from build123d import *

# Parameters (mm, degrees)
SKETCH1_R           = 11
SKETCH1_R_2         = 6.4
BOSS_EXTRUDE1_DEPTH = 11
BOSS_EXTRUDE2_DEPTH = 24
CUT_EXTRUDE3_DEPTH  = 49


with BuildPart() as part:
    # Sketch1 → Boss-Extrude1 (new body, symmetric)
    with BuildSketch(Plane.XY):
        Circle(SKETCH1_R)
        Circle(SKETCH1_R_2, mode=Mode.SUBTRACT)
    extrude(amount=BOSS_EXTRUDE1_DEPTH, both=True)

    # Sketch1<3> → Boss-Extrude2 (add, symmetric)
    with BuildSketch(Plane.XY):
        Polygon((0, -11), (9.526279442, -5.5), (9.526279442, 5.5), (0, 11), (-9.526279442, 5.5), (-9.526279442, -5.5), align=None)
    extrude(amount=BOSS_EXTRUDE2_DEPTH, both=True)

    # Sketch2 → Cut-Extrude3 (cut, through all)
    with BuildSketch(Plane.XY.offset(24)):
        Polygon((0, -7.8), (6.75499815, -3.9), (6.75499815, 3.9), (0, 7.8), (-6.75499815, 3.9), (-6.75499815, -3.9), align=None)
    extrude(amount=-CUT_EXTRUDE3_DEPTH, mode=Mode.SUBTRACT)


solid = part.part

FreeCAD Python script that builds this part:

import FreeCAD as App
import Part
import Sketcher
from FreeCAD import Vector
Q = App.Units.Quantity

doc = App.newDocument("Part")
body = doc.addObject("PartDesign::Body", "Body")

# Sketch on XY plane
sketch1 = doc.addObject("Sketcher::SketchObject", "Sketch")
body.addObject(sketch1)
sketch1.AttachmentSupport = (doc.XY_Plane, [""])
sketch1.MapMode = "FlatFace"
sketch1.addGeometry([
    Part.Circle(Vector(0, 0, 0), Vector(0, 0, 1), 11),
    Part.Circle(Vector(0, 0, 0), Vector(0, 0, 1), 6.4),
], False)
sketch1.addConstraint([
    Sketcher.Constraint("Coincident", 0, 3, -1, 1),
    Sketcher.Constraint("Coincident", 1, 3, -1, 1),
    Sketcher.Constraint("Diameter", 0, 22.0),
    Sketcher.Constraint("Diameter", 1, 12.8),
])
pad1 = doc.addObject("PartDesign::Pad", "Pad")
body.addObject(pad1)
pad1.Profile = sketch1
pad1.Length = 22
pad1.Midplane = True

# Sketch on XY plane
sketch2 = doc.addObject("Sketcher::SketchObject", "Sketch001")
body.addObject(sketch2)
sketch2.AttachmentSupport = (doc.XY_Plane, [""])
sketch2.MapMode = "FlatFace"
sketch2.addGeometry([
    Part.LineSegment(Vector(0, -11, 0), Vector(9.526279, -5.5, 0)),  # 0
    Part.LineSegment(Vector(9.526279, -5.5, 0), Vector(9.526279, 5.5, 0)),  # 1
    Part.LineSegment(Vector(9.526279, 5.5, 0), Vector(0, 11, 0)),  # 2
    Part.LineSegment(Vector(0, 11, 0), Vector(-9.526279, 5.5, 0)),  # 3
    Part.LineSegment(Vector(-9.526279, 5.5, 0), Vector(-9.526279, -5.5, 0)),  # 4
    Part.LineSegment(Vector(-9.526279, -5.5, 0), Vector(0, -11, 0)),  # 5
], False)
sketch2.addConstraint([
    Sketcher.Constraint("Coincident", 0, 2, 1, 1),
    Sketcher.Constraint("Coincident", 1, 2, 2, 1),
    Sketcher.Constraint("Coincident", 2, 2, 3, 1),
    Sketcher.Constraint("Coincident", 3, 2, 4, 1),
    Sketcher.Constraint("Coincident", 4, 2, 5, 1),
    Sketcher.Constraint("Coincident", 5, 2, 0, 1),
    Sketcher.Constraint("Vertical", 1),
    Sketcher.Constraint("Vertical", 4),
    Sketcher.Constraint("Symmetric", 0, 2, 3, 2, -1, 1),
    Sketcher.Constraint("Symmetric", 2, 2, 5, 2, -1, 1),
    Sketcher.Constraint("PointOnObject", 2, 2, -2),
    Sketcher.Constraint("Parallel", 2, 5),
    Sketcher.Constraint("Horizontal", 1, 2, 3, 2),
    Sketcher.Constraint("DistanceY", 1, 1, 1, 2, 11.0),
    Sketcher.Constraint("Angle", 0, Q("30 deg")),
    Sketcher.Constraint("Distance", 0, 11.0),
])
pad2 = doc.addObject("PartDesign::Pad", "Pad001")
body.addObject(pad2)
pad2.Profile = sketch2
pad2.Length = 48
pad2.Midplane = True

# Sketch on XY plane
sketch3 = doc.addObject("Sketcher::SketchObject", "Sketch002")
body.addObject(sketch3)
sketch3.AttachmentSupport = (doc.XY_Plane, [""])
sketch3.MapMode = "FlatFace"
sketch3.AttachmentOffset = App.Placement(Vector(0, 0, 24), App.Rotation())
sketch3.addGeometry([
    Part.LineSegment(Vector(0, -7.8, 0), Vector(6.754998, -3.9, 0)),  # 0
    Part.LineSegment(Vector(6.754998, -3.9, 0), Vector(6.754998, 3.9, 0)),  # 1
    Part.LineSegment(Vector(6.754998, 3.9, 0), Vector(0, 7.8, 0)),  # 2
    Part.LineSegment(Vector(0, 7.8, 0), Vector(-6.754998, 3.9, 0)),  # 3
    Part.LineSegment(Vector(-6.754998, 3.9, 0), Vector(-6.754998, -3.9, 0)),  # 4
    Part.LineSegment(Vector(-6.754998, -3.9, 0), Vector(0, -7.8, 0)),  # 5
], False)
sketch3.addConstraint([
    Sketcher.Constraint("Coincident", 0, 2, 1, 1),
    Sketcher.Constraint("Coincident", 1, 2, 2, 1),
    Sketcher.Constraint("Coincident", 2, 2, 3, 1),
    Sketcher.Constraint("Coincident", 3, 2, 4, 1),
    Sketcher.Constraint("Coincident", 4, 2, 5, 1),
    Sketcher.Constraint("Coincident", 5, 2, 0, 1),
    Sketcher.Constraint("Vertical", 1),
    Sketcher.Constraint("Vertical", 4),
    Sketcher.Constraint("Symmetric", 0, 2, 3, 2, -1, 1),
    Sketcher.Constraint("Symmetric", 2, 2, 5, 2, -1, 1),
    Sketcher.Constraint("PointOnObject", 2, 2, -2),
    Sketcher.Constraint("Parallel", 2, 5),
    Sketcher.Constraint("Horizontal", 1, 2, 3, 2),
    Sketcher.Constraint("Angle", 0, Q("30 deg")),
    Sketcher.Constraint("DistanceY", 1, 1, 1, 2, 7.8),
    Sketcher.Constraint("Distance", 0, 7.8),
])
pocket1 = doc.addObject("PartDesign::Pocket", "Pocket")
body.addObject(pocket1)
pocket1.Profile = sketch3
pocket1.Type = "ThroughAll"

doc.recompute()
